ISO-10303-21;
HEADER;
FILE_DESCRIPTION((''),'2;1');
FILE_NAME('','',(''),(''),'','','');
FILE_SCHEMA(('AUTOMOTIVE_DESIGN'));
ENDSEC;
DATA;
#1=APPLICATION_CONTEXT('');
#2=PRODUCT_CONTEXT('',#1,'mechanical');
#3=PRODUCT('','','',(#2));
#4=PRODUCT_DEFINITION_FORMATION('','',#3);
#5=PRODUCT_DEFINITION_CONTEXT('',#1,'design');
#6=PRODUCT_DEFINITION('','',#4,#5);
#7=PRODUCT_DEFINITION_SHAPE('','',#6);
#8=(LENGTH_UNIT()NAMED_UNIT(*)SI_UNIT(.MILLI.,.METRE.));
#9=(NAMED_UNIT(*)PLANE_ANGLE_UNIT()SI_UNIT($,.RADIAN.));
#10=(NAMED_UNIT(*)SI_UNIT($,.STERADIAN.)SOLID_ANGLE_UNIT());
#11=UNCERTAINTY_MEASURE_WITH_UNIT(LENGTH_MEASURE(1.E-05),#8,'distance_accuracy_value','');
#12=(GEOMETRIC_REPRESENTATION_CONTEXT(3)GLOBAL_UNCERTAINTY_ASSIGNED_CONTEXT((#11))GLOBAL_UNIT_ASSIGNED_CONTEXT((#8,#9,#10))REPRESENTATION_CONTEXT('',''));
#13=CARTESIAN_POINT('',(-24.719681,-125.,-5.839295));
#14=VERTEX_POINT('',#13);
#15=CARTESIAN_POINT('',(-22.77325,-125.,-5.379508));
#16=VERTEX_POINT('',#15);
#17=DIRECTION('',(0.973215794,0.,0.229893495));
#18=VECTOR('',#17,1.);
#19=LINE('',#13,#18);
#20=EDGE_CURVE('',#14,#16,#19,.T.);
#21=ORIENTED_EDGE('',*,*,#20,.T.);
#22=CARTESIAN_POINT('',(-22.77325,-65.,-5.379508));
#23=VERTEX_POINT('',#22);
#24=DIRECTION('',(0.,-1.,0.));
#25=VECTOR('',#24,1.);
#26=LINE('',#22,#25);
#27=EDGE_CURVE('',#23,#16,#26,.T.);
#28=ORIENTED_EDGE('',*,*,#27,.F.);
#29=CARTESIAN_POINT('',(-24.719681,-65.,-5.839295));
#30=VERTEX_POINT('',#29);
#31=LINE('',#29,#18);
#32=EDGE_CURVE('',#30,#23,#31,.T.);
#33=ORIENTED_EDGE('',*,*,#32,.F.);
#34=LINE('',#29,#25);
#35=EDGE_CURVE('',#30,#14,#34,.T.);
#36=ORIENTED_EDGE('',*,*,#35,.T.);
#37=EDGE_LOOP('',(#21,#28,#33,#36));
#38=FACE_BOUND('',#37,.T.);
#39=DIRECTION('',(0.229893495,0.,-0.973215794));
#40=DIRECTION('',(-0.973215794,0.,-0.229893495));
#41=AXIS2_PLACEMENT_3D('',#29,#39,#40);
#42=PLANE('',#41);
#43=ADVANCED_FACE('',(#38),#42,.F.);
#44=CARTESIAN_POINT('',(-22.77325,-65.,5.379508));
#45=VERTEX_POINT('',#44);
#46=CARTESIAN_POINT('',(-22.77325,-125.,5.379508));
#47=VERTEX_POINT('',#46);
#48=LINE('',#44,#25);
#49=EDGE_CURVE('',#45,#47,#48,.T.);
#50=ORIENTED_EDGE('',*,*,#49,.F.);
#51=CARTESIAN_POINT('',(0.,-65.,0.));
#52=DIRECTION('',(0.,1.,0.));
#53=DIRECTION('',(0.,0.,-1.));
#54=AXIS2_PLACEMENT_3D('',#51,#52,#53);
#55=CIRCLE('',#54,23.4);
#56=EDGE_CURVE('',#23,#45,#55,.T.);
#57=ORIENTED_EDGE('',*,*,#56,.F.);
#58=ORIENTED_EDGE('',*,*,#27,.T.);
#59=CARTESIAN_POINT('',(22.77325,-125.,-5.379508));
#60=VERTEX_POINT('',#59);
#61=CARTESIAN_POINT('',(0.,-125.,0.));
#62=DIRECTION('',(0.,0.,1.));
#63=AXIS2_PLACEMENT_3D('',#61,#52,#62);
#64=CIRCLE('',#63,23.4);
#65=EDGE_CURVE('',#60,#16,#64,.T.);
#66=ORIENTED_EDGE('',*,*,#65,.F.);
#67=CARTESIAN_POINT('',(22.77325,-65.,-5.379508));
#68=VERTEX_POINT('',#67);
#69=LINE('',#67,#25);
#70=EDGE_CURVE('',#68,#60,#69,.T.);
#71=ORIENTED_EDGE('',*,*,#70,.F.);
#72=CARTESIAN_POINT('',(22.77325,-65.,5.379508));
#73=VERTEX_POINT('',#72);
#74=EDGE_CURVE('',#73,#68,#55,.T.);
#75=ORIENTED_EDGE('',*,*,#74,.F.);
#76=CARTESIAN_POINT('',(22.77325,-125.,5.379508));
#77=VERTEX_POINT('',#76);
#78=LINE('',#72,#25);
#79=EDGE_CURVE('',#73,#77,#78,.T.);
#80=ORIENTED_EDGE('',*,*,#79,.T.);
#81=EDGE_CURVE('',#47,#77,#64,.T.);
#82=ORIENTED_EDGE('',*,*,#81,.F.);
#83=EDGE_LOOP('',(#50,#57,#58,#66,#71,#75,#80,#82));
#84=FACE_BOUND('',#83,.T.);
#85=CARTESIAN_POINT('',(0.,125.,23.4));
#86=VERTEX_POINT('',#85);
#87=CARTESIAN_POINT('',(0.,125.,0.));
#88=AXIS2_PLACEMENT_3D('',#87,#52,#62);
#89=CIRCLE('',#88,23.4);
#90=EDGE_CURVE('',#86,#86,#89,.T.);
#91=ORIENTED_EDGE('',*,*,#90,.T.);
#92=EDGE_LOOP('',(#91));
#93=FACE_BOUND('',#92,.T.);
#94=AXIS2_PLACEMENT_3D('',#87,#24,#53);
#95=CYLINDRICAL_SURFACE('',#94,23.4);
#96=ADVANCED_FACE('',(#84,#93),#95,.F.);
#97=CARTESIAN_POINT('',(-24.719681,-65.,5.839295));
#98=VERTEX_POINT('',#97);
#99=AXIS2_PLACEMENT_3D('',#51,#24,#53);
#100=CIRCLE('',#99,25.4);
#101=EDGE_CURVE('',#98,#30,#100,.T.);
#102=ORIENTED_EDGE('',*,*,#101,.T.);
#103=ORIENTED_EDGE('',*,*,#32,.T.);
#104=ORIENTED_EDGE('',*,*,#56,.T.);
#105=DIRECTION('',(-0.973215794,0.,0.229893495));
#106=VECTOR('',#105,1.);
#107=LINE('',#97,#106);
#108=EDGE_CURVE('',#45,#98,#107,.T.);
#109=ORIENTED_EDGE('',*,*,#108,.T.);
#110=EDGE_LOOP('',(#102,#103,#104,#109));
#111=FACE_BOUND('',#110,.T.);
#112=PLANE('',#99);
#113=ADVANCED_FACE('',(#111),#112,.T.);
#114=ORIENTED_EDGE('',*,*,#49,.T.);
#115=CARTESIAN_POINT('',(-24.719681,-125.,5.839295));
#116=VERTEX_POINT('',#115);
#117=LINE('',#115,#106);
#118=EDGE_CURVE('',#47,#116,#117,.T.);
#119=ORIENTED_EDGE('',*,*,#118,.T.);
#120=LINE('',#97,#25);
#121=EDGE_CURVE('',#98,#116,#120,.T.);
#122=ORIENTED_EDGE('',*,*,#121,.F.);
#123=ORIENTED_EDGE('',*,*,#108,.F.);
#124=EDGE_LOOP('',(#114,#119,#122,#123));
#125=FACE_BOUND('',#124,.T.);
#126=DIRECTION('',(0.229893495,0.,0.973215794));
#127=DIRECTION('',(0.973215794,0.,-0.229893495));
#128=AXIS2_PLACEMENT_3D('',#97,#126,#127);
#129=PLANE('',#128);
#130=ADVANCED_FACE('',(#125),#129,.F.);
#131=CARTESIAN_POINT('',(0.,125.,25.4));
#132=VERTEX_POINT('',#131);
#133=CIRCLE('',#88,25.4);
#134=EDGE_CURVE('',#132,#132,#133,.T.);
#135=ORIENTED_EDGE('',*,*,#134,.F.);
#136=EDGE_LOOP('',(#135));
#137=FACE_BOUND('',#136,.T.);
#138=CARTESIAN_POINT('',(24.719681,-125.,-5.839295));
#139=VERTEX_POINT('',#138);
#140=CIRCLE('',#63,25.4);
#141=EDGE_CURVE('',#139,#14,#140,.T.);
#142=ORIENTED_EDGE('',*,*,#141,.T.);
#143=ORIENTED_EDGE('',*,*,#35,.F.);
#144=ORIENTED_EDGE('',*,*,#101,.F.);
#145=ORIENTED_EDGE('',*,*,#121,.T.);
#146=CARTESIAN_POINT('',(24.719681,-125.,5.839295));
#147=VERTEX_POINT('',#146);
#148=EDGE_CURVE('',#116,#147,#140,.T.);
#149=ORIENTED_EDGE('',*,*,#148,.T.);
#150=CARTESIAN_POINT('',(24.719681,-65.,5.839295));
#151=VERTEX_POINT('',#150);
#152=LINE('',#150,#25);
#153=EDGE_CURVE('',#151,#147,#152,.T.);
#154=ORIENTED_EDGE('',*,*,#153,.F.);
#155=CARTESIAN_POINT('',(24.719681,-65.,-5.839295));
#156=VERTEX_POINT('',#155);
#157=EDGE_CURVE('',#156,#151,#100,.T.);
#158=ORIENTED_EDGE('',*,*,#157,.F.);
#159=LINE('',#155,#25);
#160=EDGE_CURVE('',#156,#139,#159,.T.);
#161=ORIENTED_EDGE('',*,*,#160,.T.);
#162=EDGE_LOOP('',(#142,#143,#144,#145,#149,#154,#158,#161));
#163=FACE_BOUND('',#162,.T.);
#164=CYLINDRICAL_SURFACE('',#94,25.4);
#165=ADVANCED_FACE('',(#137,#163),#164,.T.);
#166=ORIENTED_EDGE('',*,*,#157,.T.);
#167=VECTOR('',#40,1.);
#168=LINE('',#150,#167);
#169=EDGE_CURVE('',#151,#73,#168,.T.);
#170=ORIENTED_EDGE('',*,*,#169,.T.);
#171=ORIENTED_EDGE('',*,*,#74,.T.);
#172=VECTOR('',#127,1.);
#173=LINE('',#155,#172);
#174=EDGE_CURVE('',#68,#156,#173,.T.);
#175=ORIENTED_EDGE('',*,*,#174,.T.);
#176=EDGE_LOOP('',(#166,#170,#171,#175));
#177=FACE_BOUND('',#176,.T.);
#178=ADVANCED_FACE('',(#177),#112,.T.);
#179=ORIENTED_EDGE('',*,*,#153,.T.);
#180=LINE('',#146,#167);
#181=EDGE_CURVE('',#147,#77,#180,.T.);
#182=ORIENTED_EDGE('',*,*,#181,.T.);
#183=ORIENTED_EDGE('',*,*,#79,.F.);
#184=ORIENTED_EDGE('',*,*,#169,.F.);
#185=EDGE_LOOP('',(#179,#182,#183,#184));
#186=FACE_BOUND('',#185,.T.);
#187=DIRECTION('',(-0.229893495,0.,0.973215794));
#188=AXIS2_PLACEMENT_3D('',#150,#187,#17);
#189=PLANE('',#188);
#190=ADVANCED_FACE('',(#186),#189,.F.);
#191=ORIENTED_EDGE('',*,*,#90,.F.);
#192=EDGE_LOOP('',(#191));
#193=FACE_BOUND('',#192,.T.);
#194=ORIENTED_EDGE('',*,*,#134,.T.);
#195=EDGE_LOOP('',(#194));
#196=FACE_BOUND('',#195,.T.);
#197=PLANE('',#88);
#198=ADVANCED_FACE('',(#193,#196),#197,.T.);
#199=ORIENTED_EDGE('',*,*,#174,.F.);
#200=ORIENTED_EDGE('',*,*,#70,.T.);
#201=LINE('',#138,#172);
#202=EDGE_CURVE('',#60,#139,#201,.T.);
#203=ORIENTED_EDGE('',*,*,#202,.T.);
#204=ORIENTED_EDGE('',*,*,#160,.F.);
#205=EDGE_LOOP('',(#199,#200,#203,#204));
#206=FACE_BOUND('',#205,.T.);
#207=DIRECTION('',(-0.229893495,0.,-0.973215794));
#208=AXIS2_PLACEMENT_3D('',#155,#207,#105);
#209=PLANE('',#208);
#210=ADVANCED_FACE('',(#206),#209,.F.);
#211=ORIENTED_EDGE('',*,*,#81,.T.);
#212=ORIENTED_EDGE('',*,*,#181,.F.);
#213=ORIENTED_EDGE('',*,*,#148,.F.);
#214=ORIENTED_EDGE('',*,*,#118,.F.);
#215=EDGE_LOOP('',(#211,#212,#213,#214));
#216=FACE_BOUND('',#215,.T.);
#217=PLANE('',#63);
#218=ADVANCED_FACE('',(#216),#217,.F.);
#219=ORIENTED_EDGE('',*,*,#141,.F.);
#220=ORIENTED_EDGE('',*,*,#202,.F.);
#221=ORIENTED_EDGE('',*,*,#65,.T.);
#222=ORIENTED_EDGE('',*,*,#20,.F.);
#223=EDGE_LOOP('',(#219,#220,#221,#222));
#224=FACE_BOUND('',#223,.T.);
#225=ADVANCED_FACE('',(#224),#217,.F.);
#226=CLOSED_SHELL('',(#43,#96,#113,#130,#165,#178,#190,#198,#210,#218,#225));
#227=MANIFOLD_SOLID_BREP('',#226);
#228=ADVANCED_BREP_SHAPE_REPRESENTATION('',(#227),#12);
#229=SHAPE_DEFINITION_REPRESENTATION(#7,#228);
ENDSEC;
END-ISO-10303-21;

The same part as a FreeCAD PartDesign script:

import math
import FreeCAD as App
import Part
import Sketcher
from FreeCAD import Vector
Q = App.Units.Quantity

doc = App.newDocument("Part")
body = doc.addObject("PartDesign::Body", "Body")

# Sketch on XZ plane
sketch1 = body.newObject("Sketcher::SketchObject", "Sketch")
sketch1.AttachmentSupport = (doc.getObject("XZ_Plane"), [""])
sketch1.MapMode = "FlatFace"
sketch1.addGeometry(Part.Circle(Vector(0, 0, 0), Vector(0, 0, 1), 25), False)
sketch1.addGeometry(Part.Circle(Vector(0, 0, 0), Vector(0, 0, 1), 23), False)
sketch1.addConstraint(Sketcher.Constraint("Coincident", 0, 3, -1, 1))
sketch1.addConstraint(Sketcher.Constraint("Coincident", 1, 3, -1, 1))
sketch1.addConstraint(Sketcher.Constraint("Diameter", 0, Q("50.8 mm")))
sketch1.addConstraint(Sketcher.Constraint("Diameter", 1, Q("46.8 mm")))
pad1 = body.newObject("PartDesign::Pad", "Pad")
pad1.Profile = sketch1
pad1.Length = 250
pad1.Midplane = True

# Sketch on XZ plane
sketch2 = body.newObject("Sketcher::SketchObject", "Sketch001")
sketch2.AttachmentSupport = (doc.getObject("XZ_Plane"), [""])
sketch2.MapMode = "FlatFace"
sketch2.AttachmentOffset = App.Placement(Vector(0, 0, 125), App.Rotation())
sketch2.addGeometry(Part.LineSegment(Vector(-24.7, -5.8, 0), Vector(-22.8, -5.4, 0)), False)
sketch2.addGeometry(Part.ArcOfCircle(Part.Circle(Vector(0, 0, 0), Vector(0, 0, 1), 23.4), math.radians(167), math.radians(193)), False)
sketch2.addGeometry(Part.LineSegment(Vector(-22.8, 5.4, 0), Vector(-24.7, 5.8, 0)), False)
sketch2.addGeometry(Part.ArcOfCircle(Part.Circle(Vector(0, 0, 0), Vector(0, 0, 1), 25.4), math.radians(167), math.radians(193)), False)
sketch2.addGeometry(Part.LineSegment(Vector(22.8, -5.4, 0), Vector(24.7, -5.8, 0)), False)
sketch2.addGeometry(Part.ArcOfCircle(Part.Circle(Vector(0, 0, 0), Vector(0, 0, 1), 25.4), math.radians(-13), math.radians(13)), False)
sketch2.addGeometry(Part.LineSegment(Vector(24.7, 5.8, 0), Vector(22.8, 5.4, 0)), False)
sketch2.addGeometry(Part.ArcOfCircle(Part.Circle(Vector(0, 0, 0), Vector(0, 0, 1), 23.4), math.radians(-13), math.radians(13)), False)
sketch2.addConstraint(Sketcher.Constraint("Coincident", 0, 2, 1, 2))
sketch2.addConstraint(Sketcher.Constraint("Coincident", 1, 1, 2, 1))
sketch2.addConstraint(Sketcher.Constraint("Coincident", 2, 2, 3, 1))
sketch2.addConstraint(Sketcher.Constraint("Coincident", 3, 2, 0, 1))
sketch2.addConstraint(Sketcher.Constraint("Coincident", 4, 2, 5, 1))
sketch2.addConstraint(Sketcher.Constraint("Coincident", 5, 2, 6, 1))
sketch2.addConstraint(Sketcher.Constraint("Coincident", 6, 2, 7, 2))
sketch2.addConstraint(Sketcher.Constraint("Coincident", 7, 1, 4, 1))
sketch2.addConstraint(Sketcher.Constraint("Coincident", 1, 3, -1, 1))
sketch2.addConstraint(Sketcher.Constraint("Coincident", 3, 3, -1, 1))
sketch2.addConstraint(Sketcher.Constraint("Coincident", 5, 3, -1, 1))
sketch2.addConstraint(Sketcher.Constraint("Coincident", 7, 3, -1, 1))
sketch2.addConstraint(Sketcher.Constraint("Equal", 3, 5))
sketch2.addConstraint(Sketcher.Constraint("Equal", 1, 7))
sketch2.addConstraint(Sketcher.Constraint("Parallel", 2, 4))
sketch2.addConstraint(Sketcher.Constraint("Parallel", 0, 6))
sketch2.addConstraint(Sketcher.Constraint("Horizontal", 3, 2, 4, 2))
sketch2.addConstraint(Sketcher.Constraint("Horizontal", 2, 2, 5, 2))
sketch2.addConstraint(Sketcher.Constraint("Horizontal", 1, 1, 6, 2))
sketch2.addConstraint(Sketcher.Constraint("Vertical", 0, 2, 1, 1))
sketch2.addConstraint(Sketcher.Constraint("Radius", 1, Q("23.4 mm")))
sketch2.addConstraint(Sketcher.Constraint("Radius", 3, Q("25.4 mm")))
sketch2.addConstraint(Sketcher.Constraint("DistanceX", 0, 2, -1, 1, Q("22.77325 mm")))
sketch2.addConstraint(Sketcher.Constraint("DistanceX", 2, 2, -1, 1, Q("24.719681 mm")))
pocket1 = body.newObject("PartDesign::Pocket", "Pocket")
pocket1.Profile = sketch2
pocket1.Length = 60

doc.recompute()
